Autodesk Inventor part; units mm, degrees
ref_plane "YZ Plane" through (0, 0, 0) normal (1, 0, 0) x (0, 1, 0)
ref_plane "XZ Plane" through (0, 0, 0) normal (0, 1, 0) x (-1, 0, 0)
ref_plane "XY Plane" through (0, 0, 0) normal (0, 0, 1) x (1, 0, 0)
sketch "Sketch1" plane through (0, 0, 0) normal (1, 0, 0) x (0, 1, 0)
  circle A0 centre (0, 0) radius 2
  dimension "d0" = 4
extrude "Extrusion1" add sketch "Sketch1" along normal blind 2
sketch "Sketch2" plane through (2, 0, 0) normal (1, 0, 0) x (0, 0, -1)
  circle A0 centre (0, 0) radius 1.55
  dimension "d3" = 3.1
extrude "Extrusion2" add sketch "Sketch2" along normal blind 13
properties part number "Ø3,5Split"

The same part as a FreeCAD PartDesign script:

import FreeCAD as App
import Part
import Sketcher
Q = App.Units.Quantity

doc = App.newDocument("Part")
body = doc.addObject("PartDesign::Body", "Body")

# Sketch on YZ plane
sketch1 = body.newObject("Sketcher::SketchObject", "Sketch")
sketch1.AttachmentSupport = (doc.getObject("YZ_Plane"), [""])
sketch1.MapMode = "FlatFace"
sketch1.addGeometry(Part.Circle(App.Vector(0, 0, 0), App.Vector(0, 0, 1), 2), False)
sketch1.addConstraint(Sketcher.Constraint("Coincident", 0, 3, -1, 1))
sketch1.addConstraint(Sketcher.Constraint("Diameter", 0, Q("4 mm")))
pad1 = body.newObject("PartDesign::Pad", "Pad")
pad1.Profile = sketch1
pad1.Length = 2

# Sketch on YZ plane
sketch2 = body.newObject("Sketcher::SketchObject", "Sketch001")
sketch2.AttachmentSupport = (doc.getObject("YZ_Plane"), [""])
sketch2.MapMode = "FlatFace"
sketch2.AttachmentOffset = App.Placement(App.Vector(0, 0, 2), App.Rotation())
sketch2.addGeometry(Part.Circle(App.Vector(0, 0, 0), App.Vector(0, 0, 1), 1.6), False)
sketch2.addConstraint(Sketcher.Constraint("Coincident", 0, 3, -1, 1))
sketch2.addConstraint(Sketcher.Constraint("Diameter", 0, Q("3.1 mm")))
pad2 = body.newObject("PartDesign::Pad", "Pad001")
pad2.Profile = sketch2
pad2.Length = 13

doc.recompute()
